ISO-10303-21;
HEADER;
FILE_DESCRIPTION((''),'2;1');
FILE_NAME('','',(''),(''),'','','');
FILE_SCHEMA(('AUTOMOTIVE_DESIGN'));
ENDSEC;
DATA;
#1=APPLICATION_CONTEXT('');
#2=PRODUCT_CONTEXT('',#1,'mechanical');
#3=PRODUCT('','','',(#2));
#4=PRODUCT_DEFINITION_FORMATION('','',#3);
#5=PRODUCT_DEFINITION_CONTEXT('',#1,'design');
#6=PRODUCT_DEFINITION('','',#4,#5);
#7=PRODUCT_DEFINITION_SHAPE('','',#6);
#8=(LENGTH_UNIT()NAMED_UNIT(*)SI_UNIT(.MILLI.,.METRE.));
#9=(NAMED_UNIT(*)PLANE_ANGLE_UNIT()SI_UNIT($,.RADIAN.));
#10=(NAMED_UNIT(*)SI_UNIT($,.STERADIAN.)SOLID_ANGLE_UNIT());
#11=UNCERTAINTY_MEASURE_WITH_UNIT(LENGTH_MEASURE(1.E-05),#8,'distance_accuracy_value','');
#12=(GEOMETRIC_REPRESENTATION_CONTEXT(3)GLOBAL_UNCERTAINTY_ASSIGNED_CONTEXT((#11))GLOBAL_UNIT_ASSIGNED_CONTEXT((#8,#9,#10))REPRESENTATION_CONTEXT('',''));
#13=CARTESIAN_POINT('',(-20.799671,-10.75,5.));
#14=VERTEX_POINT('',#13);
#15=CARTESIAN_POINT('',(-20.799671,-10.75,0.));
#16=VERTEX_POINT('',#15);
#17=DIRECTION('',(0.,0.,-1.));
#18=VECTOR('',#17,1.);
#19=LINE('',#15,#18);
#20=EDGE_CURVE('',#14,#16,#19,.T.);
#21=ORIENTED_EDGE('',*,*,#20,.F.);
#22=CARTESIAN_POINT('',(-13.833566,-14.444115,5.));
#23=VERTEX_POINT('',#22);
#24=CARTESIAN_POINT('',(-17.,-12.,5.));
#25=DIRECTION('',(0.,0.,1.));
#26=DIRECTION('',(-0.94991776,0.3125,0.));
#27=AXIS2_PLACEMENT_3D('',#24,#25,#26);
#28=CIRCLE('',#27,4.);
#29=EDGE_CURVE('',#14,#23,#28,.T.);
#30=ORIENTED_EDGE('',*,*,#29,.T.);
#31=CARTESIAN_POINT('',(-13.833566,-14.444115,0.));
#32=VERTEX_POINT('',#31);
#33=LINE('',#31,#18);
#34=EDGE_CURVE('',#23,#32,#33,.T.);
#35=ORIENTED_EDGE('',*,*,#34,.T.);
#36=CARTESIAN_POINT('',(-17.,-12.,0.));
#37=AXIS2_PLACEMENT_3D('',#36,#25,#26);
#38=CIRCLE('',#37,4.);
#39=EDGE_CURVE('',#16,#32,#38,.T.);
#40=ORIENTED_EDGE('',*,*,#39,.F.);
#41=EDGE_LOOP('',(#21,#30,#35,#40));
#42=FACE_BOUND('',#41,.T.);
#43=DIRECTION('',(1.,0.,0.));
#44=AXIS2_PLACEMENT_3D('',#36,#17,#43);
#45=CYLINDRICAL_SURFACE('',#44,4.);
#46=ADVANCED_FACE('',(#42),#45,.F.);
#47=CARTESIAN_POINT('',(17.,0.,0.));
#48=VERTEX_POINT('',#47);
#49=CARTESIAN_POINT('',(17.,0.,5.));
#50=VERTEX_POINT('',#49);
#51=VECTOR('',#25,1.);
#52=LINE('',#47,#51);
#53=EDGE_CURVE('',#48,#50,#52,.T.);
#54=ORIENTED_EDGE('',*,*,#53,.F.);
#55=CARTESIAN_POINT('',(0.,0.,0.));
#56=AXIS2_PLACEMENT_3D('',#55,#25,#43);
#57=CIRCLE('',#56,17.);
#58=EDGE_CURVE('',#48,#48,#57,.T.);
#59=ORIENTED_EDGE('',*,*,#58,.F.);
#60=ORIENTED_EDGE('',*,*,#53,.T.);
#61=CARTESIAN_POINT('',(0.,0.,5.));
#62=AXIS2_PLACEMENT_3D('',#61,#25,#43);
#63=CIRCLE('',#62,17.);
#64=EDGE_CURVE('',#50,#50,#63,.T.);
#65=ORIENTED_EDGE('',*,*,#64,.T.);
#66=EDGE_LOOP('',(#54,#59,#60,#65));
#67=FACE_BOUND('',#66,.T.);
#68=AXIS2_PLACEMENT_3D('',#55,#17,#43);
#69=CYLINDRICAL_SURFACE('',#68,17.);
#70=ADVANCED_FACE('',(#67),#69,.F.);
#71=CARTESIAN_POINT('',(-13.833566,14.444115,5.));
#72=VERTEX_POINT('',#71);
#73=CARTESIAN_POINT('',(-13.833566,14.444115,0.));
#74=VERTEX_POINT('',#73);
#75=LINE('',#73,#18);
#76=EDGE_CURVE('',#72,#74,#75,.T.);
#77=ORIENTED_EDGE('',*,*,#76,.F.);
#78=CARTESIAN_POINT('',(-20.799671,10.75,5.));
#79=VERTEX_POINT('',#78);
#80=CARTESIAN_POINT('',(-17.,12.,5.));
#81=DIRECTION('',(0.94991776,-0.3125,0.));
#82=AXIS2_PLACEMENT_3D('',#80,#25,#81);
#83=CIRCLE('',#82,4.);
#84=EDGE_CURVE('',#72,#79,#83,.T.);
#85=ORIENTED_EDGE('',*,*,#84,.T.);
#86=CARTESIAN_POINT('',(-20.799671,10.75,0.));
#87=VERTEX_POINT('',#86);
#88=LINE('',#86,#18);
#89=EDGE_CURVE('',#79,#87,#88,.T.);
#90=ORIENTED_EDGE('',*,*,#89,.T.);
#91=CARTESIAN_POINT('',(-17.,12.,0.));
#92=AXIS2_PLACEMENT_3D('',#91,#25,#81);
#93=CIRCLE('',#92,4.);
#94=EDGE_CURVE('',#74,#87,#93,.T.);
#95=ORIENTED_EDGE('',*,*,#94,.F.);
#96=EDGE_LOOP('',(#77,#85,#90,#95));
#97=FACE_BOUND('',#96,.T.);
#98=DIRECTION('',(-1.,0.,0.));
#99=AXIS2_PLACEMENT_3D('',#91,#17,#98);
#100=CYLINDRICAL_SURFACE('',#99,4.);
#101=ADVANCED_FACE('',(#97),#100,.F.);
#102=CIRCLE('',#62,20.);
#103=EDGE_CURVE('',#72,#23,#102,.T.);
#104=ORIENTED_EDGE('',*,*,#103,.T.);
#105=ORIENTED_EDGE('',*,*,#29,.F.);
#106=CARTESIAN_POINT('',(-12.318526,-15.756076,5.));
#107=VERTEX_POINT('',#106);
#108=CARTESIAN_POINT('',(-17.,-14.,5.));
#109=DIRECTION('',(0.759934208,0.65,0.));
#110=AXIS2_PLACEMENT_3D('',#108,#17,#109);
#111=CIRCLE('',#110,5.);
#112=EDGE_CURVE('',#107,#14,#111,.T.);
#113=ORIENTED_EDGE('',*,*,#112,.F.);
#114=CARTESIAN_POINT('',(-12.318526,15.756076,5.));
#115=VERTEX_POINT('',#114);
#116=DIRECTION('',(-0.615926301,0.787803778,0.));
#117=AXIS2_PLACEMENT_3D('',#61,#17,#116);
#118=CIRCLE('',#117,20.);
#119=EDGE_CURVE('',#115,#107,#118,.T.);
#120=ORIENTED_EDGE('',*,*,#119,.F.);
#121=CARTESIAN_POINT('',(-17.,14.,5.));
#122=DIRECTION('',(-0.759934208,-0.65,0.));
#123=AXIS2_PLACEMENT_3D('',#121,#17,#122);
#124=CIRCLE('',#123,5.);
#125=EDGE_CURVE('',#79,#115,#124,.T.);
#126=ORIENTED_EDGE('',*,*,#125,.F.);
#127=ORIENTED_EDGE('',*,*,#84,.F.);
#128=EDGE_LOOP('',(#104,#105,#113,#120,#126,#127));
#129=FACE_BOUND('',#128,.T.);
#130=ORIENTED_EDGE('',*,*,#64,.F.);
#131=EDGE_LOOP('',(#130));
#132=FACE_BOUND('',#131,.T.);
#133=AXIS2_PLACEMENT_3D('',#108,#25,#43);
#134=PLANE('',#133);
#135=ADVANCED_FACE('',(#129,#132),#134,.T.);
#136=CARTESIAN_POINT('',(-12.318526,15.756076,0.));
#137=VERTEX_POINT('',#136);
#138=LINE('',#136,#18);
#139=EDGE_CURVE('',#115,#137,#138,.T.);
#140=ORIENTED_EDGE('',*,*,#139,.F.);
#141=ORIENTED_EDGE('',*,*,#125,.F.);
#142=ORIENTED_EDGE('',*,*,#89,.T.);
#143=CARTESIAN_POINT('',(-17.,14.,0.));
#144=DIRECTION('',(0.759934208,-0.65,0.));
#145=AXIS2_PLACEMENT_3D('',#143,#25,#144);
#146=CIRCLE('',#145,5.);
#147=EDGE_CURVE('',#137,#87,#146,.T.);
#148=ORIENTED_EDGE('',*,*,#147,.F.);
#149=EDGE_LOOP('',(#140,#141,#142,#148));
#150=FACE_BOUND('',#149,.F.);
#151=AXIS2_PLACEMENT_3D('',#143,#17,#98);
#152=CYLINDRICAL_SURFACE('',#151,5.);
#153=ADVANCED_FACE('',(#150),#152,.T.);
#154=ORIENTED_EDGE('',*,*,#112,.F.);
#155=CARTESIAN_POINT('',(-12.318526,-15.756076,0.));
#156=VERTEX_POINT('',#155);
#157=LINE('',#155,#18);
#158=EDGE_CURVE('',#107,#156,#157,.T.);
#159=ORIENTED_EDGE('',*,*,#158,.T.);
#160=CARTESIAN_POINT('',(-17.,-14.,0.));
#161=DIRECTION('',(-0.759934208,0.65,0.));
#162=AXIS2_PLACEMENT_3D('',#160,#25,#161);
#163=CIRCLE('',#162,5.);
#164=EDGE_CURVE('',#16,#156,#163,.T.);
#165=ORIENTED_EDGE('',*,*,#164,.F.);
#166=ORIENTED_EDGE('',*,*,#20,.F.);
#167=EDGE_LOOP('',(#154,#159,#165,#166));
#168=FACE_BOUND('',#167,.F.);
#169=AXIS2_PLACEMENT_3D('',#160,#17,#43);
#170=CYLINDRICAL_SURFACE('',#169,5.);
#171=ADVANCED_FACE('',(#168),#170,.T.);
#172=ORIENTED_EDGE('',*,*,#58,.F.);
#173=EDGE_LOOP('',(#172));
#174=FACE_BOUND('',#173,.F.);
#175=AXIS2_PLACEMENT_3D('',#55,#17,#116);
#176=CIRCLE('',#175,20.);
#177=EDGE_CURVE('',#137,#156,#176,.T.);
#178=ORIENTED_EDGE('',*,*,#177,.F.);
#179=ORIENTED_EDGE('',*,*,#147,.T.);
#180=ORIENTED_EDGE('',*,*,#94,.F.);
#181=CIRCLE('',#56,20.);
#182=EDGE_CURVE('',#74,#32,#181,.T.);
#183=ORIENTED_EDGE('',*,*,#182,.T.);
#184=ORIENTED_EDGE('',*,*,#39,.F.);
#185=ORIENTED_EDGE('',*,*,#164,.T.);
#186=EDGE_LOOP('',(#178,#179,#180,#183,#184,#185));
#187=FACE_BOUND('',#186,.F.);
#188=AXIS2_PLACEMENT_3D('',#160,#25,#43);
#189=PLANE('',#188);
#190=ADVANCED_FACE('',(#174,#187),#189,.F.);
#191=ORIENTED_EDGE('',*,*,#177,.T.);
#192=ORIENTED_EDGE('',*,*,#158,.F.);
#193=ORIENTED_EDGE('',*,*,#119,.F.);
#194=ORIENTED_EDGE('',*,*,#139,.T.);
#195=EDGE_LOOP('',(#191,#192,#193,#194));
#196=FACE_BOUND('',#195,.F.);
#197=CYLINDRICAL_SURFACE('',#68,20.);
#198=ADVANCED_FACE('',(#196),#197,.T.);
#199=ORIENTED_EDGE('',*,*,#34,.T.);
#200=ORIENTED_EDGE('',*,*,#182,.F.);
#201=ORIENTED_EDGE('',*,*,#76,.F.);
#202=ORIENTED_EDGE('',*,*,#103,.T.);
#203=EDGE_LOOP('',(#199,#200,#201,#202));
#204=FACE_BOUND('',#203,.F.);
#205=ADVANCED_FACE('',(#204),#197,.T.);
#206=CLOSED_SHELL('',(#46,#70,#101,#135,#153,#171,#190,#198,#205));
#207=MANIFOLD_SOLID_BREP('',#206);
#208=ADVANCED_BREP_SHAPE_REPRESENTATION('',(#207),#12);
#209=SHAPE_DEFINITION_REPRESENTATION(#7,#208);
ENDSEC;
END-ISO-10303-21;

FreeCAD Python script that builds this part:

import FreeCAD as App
import Part
import Sketcher
from FreeCAD import Vector

doc = App.newDocument("Part")
params = doc.addObject("Spreadsheet::Sheet", "Params")
for row, (alias, value) in enumerate([
    ("sketch1_diameter", "8 mm"),
    ("pad1_length", "5 mm"),
    ("sketch2_diameter", "10 mm"),
    ("pad2_length", "5 mm"),
    ("sketch3_diameter", "34 mm"),
    ("pad3_length", "5 mm"),
    ("sketch4_diameter", "40 mm"),
    ("pad4_length", "5 mm"),
    ("sketch5_diameter", "8 mm"),
    ("pad5_length", "5 mm"),
    ("sketch6_diameter", "10 mm"),
    ("pad6_length", "5 mm"),
], start=1):
    params.set(f"A{row}", alias)
    params.set(f"B{row}", "=" + value)
    params.setAlias(f"B{row}", alias)

body = doc.addObject("PartDesign::Body", "Body")

sketch1 = body.newObject("Sketcher::SketchObject", "Sketch")
sketch1.AttachmentSupport = (doc.getObject("XY_Plane"), [""])
sketch1.MapMode = "FlatFace"
sketch1.addGeometry(Part.Circle(Vector(0, 2, 0), Vector(0, 0, 1), 4), False)
sketch1.addConstraint([
    Sketcher.Constraint("PointOnObject", 0, 3, -2),
    Sketcher.Constraint("Diameter", 0, 8.0),
    Sketcher.Constraint("DistanceY", -1, 1, 0, 3, 2.0),
])
sketch1.setExpression("Constraints[1]", "Params.sketch1_diameter")
pad1 = body.newObject("PartDesign::Pad", "Pad")
pad1.Profile = sketch1
pad1.setExpression("Length", "Params.pad1_length")
body2 = doc.addObject("PartDesign::Body", "Body001")

sketch2 = body2.newObject("Sketcher::SketchObject", "Sketch001")
sketch2.AttachmentSupport = (doc.getObject("XY_Plane001"), [""])
sketch2.MapMode = "FlatFace"
sketch2.addGeometry(Part.Circle(Vector(0, 0, 0), Vector(0, 0, 1), 5), False)
sketch2.addConstraint([
    Sketcher.Constraint("Coincident", 0, 3, -1, 1),
    Sketcher.Constraint("Diameter", 0, 10.0),
])
sketch2.setExpression("Constraints[1]", "Params.sketch2_diameter")
pad2 = body2.newObject("PartDesign::Pad", "Pad001")
pad2.Profile = sketch2
pad2.setExpression("Length", "Params.pad2_length")
doc.recompute()

boolean = body2.newObject("PartDesign::Boolean", "Boolean")
boolean.Type = "Cut"
boolean.addObjects([body])
body3 = doc.addObject("PartDesign::Body", "Body002")
doc.recompute()

body2.Placement = App.Placement(Vector(-17, -14, 0), App.Rotation(Vector(0, 0, 1), 0))
boolean2 = body3.newObject("PartDesign::Boolean", "Boolean001")
boolean2.Type = "Fuse"
boolean2.addObjects([body2])
body4 = doc.addObject("PartDesign::Body", "Body003")

sketch3 = body4.newObject("Sketcher::SketchObject", "Sketch002")
sketch3.AttachmentSupport = (doc.getObject("XY_Plane003"), [""])
sketch3.MapMode = "FlatFace"
sketch3.addGeometry(Part.Circle(Vector(0, 0, 0), Vector(0, 0, 1), 17), False)
sketch3.addConstraint([
    Sketcher.Constraint("Coincident", 0, 3, -1, 1),
    Sketcher.Constraint("Diameter", 0, 34.0),
])
sketch3.setExpression("Constraints[1]", "Params.sketch3_diameter")
pad3 = body4.newObject("PartDesign::Pad", "Pad002")
pad3.Profile = sketch3
pad3.setExpression("Length", "Params.pad3_length")
body5 = doc.addObject("PartDesign::Body", "Body004")

sketch4 = body5.newObject("Sketcher::SketchObject", "Sketch003")
sketch4.AttachmentSupport = (doc.getObject("XY_Plane004"), [""])
sketch4.MapMode = "FlatFace"
sketch4.addGeometry(Part.Circle(Vector(0, 0, 0), Vector(0, 0, 1), 20), False)
sketch4.addConstraint([
    Sketcher.Constraint("Coincident", 0, 3, -1, 1),
    Sketcher.Constraint("Diameter", 0, 40.0),
])
sketch4.setExpression("Constraints[1]", "Params.sketch4_diameter")
pad4 = body5.newObject("PartDesign::Pad", "Pad003")
pad4.Profile = sketch4
pad4.setExpression("Length", "Params.pad4_length")
doc.recompute()

boolean3 = body5.newObject("PartDesign::Boolean", "Boolean002")
boolean3.Type = "Cut"
boolean3.addObjects([body4])
doc.recompute()

boolean4 = body5.newObject("PartDesign::Boolean", "Boolean003")
boolean4.Type = "Fuse"
boolean4.addObjects([body3])
body6 = doc.addObject("PartDesign::Body", "Body005")

sketch5 = body6.newObject("Sketcher::SketchObject", "Sketch004")
sketch5.AttachmentSupport = (doc.getObject("XY_Plane005"), [""])
sketch5.MapMode = "FlatFace"
sketch5.addGeometry(Part.Circle(Vector(0, 2, 0), Vector(0, 0, 1), 4), False)
sketch5.addConstraint([
    Sketcher.Constraint("PointOnObject", 0, 3, -2),
    Sketcher.Constraint("Diameter", 0, 8.0),
    Sketcher.Constraint("DistanceY", -1, 1, 0, 3, 2.0),
])
sketch5.setExpression("Constraints[1]", "Params.sketch5_diameter")
pad5 = body6.newObject("PartDesign::Pad", "Pad004")
pad5.Profile = sketch5
pad5.setExpression("Length", "Params.pad5_length")
body7 = doc.addObject("PartDesign::Body", "Body006")

sketch6 = body7.newObject("Sketcher::SketchObject", "Sketch005")
sketch6.AttachmentSupport = (doc.getObject("XY_Plane006"), [""])
sketch6.MapMode = "FlatFace"
sketch6.addGeometry(Part.Circle(Vector(0, 0, 0), Vector(0, 0, 1), 5), False)
sketch6.addConstraint([
    Sketcher.Constraint("Coincident", 0, 3, -1, 1),
    Sketcher.Constraint("Diameter", 0, 10.0),
])
sketch6.setExpression("Constraints[1]", "Params.sketch6_diameter")
pad6 = body7.newObject("PartDesign::Pad", "Pad005")
pad6.Profile = sketch6
pad6.setExpression("Length", "Params.pad6_length")
doc.recompute()

boolean5 = body7.newObject("PartDesign::Boolean", "Boolean004")
boolean5.Type = "Cut"
boolean5.addObjects([body6])
body8 = doc.addObject("PartDesign::Body", "Body007")
doc.recompute()

body7.Placement = App.Placement(Vector(-17, 14, 0), App.Rotation(Vector(0, 0, -1), 180))
boolean6 = body8.newObject("PartDesign::Boolean", "Boolean005")
boolean6.Type = "Fuse"
boolean6.addObjects([body7])
doc.recompute()

boolean7 = body8.newObject("PartDesign::Boolean", "Boolean006")
boolean7.Type = "Fuse"
boolean7.addObjects([body5])

doc.recompute()
